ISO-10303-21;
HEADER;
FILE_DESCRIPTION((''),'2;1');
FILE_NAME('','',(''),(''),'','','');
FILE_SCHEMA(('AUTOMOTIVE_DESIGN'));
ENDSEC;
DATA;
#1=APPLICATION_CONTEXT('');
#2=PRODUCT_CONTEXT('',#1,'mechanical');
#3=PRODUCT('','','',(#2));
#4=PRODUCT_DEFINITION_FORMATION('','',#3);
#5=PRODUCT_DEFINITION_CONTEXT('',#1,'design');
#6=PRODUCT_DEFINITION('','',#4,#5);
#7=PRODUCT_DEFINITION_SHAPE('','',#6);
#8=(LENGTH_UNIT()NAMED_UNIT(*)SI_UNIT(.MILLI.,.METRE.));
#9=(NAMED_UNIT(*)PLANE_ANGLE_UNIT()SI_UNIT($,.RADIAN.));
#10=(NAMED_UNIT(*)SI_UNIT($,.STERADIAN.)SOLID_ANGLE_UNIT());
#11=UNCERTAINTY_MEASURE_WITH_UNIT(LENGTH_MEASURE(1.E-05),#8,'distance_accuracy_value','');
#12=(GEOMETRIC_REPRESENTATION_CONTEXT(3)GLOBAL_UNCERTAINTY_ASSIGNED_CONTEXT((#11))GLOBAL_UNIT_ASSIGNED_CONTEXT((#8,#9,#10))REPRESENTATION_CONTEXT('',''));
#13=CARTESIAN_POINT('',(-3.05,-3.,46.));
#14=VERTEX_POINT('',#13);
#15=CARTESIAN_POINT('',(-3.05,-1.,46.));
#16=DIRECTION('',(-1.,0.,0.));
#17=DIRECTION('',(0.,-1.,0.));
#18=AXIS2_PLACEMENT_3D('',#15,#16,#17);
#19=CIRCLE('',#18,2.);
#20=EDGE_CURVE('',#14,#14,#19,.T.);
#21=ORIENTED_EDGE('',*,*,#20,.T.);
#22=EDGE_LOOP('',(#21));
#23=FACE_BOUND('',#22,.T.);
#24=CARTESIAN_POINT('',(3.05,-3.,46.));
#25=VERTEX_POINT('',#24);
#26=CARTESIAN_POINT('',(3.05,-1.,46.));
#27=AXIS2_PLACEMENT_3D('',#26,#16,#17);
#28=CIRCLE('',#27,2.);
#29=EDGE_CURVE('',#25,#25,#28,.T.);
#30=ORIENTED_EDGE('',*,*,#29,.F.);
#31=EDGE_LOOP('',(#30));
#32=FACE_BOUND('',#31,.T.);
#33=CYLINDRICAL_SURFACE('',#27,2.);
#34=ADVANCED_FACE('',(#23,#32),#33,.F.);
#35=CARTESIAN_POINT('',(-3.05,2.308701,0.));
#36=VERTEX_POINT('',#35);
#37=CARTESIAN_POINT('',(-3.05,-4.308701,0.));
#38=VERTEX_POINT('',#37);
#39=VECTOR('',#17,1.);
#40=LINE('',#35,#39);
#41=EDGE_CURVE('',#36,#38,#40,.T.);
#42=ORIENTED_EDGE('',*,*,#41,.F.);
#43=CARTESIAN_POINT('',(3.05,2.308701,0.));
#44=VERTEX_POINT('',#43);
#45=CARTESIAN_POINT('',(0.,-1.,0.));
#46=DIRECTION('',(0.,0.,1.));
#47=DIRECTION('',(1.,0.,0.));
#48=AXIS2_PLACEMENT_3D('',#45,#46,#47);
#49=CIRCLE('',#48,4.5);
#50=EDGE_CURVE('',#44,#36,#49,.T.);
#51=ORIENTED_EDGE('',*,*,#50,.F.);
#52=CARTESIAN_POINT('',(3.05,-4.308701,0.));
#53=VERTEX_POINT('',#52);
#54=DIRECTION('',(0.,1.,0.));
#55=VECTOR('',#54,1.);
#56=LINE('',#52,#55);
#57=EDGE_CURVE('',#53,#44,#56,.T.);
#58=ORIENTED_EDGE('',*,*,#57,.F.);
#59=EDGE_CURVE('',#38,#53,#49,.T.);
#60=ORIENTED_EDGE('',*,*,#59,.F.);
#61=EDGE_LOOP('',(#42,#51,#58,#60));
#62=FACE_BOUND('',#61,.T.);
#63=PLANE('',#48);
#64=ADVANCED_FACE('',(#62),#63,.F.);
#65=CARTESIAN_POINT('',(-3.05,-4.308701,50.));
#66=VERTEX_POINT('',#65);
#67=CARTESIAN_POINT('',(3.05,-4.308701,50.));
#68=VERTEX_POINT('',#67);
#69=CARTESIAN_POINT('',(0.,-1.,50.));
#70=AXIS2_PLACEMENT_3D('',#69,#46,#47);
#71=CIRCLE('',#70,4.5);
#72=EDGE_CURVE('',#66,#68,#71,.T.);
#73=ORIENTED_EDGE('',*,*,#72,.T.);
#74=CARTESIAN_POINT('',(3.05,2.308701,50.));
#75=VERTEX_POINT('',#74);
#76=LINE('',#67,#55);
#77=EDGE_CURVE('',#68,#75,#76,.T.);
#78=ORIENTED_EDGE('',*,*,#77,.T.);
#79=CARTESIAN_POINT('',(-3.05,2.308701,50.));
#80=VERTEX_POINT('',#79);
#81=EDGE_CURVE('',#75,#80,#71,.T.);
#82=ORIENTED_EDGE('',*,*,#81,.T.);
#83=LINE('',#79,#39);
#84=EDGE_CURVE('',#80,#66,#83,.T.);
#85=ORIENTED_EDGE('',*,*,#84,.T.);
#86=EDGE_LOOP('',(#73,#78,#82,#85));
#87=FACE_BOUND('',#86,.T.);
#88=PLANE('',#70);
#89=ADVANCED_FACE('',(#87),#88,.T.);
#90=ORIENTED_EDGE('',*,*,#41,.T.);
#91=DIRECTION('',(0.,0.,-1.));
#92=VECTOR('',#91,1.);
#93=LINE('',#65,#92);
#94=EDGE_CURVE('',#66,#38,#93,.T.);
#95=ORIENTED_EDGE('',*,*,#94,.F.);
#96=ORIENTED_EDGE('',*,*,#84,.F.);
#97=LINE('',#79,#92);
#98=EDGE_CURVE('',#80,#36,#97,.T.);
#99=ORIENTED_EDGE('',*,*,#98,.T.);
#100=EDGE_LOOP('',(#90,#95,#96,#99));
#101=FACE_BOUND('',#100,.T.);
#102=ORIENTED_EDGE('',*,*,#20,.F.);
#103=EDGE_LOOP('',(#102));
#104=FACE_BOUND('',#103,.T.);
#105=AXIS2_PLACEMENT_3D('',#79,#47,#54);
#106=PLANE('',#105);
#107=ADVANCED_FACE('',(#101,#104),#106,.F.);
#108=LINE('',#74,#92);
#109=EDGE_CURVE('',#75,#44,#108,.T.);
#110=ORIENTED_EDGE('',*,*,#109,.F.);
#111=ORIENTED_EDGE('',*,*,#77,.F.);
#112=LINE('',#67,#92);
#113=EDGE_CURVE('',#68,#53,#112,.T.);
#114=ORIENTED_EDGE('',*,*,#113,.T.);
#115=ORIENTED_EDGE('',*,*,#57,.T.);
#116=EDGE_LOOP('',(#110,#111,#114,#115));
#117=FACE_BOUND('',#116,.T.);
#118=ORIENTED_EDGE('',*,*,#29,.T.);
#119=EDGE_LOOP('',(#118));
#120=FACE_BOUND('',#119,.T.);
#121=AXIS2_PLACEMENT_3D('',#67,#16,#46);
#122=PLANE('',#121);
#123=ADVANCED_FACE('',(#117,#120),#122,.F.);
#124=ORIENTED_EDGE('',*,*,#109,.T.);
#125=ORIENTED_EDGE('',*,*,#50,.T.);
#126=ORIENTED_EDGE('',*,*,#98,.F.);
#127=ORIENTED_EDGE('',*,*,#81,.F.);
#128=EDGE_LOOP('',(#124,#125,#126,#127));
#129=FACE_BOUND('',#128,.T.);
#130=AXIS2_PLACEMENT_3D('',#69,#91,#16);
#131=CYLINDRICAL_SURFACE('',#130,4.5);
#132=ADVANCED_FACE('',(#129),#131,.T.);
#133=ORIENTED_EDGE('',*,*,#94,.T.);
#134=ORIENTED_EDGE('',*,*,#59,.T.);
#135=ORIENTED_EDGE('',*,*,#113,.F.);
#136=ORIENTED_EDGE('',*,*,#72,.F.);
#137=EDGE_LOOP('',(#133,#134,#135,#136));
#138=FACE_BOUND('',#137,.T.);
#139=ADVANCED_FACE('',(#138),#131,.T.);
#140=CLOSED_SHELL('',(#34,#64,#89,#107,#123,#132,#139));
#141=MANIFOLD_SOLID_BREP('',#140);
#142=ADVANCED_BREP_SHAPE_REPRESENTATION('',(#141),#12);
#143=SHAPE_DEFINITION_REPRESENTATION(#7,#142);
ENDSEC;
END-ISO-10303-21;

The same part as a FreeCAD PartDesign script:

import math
import FreeCAD as App
import Part
import Sketcher

V = App.Vector
Q = App.Units.Quantity

doc = App.newDocument("Part")
body = doc.addObject("PartDesign::Body", "Body")

sketch1 = body.newObject("Sketcher::SketchObject", "Sketch")
sketch1.AttachmentSupport = (doc.getObject("XY_Plane"), [""])
sketch1.MapMode = "FlatFace"
sketch1.addGeometry([
    Part.LineSegment(V(-3.05, 2.308701, 0), V(-3.05, -4.308701, 0)),
    Part.ArcOfCircle(Part.Circle(V(0, -1, 0), V(0, 0, 1), 4.5), math.radians(-132.670234), math.radians(-47.329766)),
    Part.LineSegment(V(3.05, -4.308701, 0), V(3.05, 2.308701, 0)),
    Part.ArcOfCircle(Part.Circle(V(0, -1, 0), V(0, 0, 1), 4.5), math.radians(47.329766), math.radians(132.670234)),
], False)
sketch1.addConstraint([
    Sketcher.Constraint("Coincident", 0, 2, 1, 1),
    Sketcher.Constraint("Coincident", 1, 2, 2, 1),
    Sketcher.Constraint("Coincident", 2, 2, 3, 1),
    Sketcher.Constraint("Coincident", 3, 2, 0, 1),
    Sketcher.Constraint("Vertical", 0),
    Sketcher.Constraint("Vertical", 2),
    Sketcher.Constraint("Coincident", 3, 3, 1, 3),
    Sketcher.Constraint("Equal", 1, 3),
    Sketcher.Constraint("Symmetric", 0, 2, 1, 2, -2),
    Sketcher.Constraint("Radius", 1, Q("4.5 mm")),
    Sketcher.Constraint("DistanceY", 1, 3, -1, 1, Q("1 mm")),
    Sketcher.Constraint("DistanceX", 0, 2, 1, 2, Q("6.1 mm")),
])
pad1 = body.newObject("PartDesign::Pad", "Pad")
pad1.Profile = sketch1
pad1.Length = 50

sketch2 = body.newObject("Sketcher::SketchObject", "Sketch001")
sketch2.AttachmentSupport = (doc.getObject("YZ_Plane"), [""])
sketch2.MapMode = "FlatFace"
sketch2.AttachmentOffset = App.Placement(V(0, 0, -3.05), App.Rotation())
sketch2.addGeometry(Part.Circle(V(-1, 46, 0), V(0, 0, 1), 2), False)
sketch2.addConstraint([
    Sketcher.Constraint("Diameter", 0, Q("4 mm")),
    Sketcher.Constraint("DistanceX", 0, 3, -1, 1, Q("1 mm")),
    Sketcher.Constraint("DistanceY", -1, 1, 0, 3, Q("46 mm")),
])
pocket1 = body.newObject("PartDesign::Pocket", "Pocket")
pocket1.Profile = sketch2
pocket1.Type = "ThroughAll"
pocket1.Reversed = True

doc.recompute()
